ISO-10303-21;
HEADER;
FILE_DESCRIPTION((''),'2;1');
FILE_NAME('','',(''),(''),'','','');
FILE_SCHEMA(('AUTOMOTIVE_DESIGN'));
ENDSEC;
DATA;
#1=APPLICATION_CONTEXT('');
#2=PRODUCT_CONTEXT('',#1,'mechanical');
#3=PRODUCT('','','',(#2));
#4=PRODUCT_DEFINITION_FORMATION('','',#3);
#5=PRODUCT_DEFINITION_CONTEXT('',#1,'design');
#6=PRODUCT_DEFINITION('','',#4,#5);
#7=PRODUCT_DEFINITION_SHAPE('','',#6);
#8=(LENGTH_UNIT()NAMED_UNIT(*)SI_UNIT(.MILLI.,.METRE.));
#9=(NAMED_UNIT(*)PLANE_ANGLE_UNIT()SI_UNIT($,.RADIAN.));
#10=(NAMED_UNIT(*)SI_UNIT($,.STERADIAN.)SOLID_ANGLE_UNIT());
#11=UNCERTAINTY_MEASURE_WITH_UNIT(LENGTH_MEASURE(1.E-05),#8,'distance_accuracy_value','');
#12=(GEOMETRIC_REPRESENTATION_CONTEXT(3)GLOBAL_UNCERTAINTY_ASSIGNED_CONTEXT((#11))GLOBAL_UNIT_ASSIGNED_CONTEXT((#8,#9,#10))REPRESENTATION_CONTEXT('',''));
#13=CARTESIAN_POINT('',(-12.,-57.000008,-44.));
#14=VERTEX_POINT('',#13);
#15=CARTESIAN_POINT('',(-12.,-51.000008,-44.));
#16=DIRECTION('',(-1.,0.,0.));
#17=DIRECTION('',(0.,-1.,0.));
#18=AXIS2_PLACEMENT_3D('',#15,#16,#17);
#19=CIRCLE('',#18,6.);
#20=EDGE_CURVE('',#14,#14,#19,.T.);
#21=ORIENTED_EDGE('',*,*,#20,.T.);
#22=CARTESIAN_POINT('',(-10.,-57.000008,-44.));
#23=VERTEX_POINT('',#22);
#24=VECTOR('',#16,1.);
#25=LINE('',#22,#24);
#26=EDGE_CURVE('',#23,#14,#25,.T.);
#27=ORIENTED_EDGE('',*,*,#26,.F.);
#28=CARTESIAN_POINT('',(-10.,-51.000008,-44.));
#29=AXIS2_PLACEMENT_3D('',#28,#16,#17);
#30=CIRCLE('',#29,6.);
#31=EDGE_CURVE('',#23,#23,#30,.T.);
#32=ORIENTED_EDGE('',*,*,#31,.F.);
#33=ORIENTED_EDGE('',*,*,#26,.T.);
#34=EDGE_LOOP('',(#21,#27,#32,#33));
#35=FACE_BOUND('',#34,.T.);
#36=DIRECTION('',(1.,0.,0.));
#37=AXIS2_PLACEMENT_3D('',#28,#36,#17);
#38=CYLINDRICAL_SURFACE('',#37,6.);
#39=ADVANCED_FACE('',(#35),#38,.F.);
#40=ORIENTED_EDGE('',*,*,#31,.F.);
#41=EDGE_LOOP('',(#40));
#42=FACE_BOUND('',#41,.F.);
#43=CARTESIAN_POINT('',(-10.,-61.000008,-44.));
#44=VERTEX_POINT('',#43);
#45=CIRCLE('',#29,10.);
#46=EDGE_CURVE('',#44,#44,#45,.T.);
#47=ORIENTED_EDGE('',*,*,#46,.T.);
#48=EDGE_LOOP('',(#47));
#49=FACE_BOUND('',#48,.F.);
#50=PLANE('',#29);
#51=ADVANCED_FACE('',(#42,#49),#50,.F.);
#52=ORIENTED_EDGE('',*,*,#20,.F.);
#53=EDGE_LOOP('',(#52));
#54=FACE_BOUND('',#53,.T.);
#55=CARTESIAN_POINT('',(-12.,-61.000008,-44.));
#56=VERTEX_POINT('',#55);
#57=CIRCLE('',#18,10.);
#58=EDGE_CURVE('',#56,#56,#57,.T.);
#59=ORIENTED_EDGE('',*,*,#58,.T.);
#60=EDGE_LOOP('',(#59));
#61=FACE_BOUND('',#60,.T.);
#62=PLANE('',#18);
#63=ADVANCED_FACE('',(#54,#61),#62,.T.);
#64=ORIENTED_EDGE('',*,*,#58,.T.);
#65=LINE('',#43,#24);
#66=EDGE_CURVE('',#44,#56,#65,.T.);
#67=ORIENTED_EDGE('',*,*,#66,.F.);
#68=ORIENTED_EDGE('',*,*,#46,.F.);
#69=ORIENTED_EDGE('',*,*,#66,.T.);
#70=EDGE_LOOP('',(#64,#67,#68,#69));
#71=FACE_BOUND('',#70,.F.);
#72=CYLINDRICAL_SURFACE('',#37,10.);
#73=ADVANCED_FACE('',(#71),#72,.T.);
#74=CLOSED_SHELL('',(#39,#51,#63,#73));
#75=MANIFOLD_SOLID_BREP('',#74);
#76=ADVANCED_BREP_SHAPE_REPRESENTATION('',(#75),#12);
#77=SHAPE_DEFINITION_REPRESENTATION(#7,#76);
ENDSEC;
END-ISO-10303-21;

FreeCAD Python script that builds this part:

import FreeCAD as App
import Part
import Sketcher

V = App.Vector
Q = App.Units.Quantity

doc = App.newDocument("Part")
body = doc.addObject("PartDesign::Body", "Body")

# Sketch on YZ plane
sketch1 = doc.addObject("Sketcher::SketchObject", "Sketch")
body.addObject(sketch1)
sketch1.AttachmentSupport = (doc.YZ_Plane, [""])
sketch1.MapMode = "FlatFace"
sketch1.addGeometry([
    Part.Circle(V(0, 0, 0), V(0, 0, 1), 10),
    Part.Circle(V(0, 0, 0), V(0, 0, 1), 6),
], False)
sketch1.addConstraint([
    Sketcher.Constraint("Coincident", 0, 3, -1, 1),
    Sketcher.Constraint("Coincident", 1, 3, -1, 1),
    Sketcher.Constraint("Diameter", 0, Q("20 mm")),
    Sketcher.Constraint("Diameter", 1, Q("12 mm")),
])
pad1 = doc.addObject("PartDesign::Pad", "Pad")
body.addObject(pad1)
pad1.Profile = sketch1
pad1.Length = 2
body2 = doc.addObject("PartDesign::Body", "Body001")
doc.recompute()

body.Placement = App.Placement(V(10, 51, -44), App.Rotation(V(0, 0, 1), 0))
boolean = doc.addObject("PartDesign::Boolean", "Boolean")
body2.addObject(boolean)
boolean.Type = "Fuse"
boolean.addObjects([body])
body3 = doc.addObject("PartDesign::Body", "Body002")
doc.recompute()

mirroring = doc.addObject("Part::Mirroring", "Mirroring")
mirroring.Source = body2
mirroring.Base = V(11, -0.000004, -44.000004)
mirroring.Normal = V(0, 1, 0)
body3.BaseFeature = mirroring
doc.recompute()
body4 = doc.addObject("PartDesign::Body", "Body003")
doc.recompute()

mirroring2 = doc.addObject("Part::Mirroring", "Mirroring001")
mirroring2.Source = body3
mirroring2.Base = V(0, 0, 0)
mirroring2.Normal = V(1, 0, 0)
body4.BaseFeature = mirroring2
doc.recompute()
body2.Visibility = False
body3.Visibility = False
mirroring.Visibility = False
mirroring2.Visibility = False

doc.recompute()
